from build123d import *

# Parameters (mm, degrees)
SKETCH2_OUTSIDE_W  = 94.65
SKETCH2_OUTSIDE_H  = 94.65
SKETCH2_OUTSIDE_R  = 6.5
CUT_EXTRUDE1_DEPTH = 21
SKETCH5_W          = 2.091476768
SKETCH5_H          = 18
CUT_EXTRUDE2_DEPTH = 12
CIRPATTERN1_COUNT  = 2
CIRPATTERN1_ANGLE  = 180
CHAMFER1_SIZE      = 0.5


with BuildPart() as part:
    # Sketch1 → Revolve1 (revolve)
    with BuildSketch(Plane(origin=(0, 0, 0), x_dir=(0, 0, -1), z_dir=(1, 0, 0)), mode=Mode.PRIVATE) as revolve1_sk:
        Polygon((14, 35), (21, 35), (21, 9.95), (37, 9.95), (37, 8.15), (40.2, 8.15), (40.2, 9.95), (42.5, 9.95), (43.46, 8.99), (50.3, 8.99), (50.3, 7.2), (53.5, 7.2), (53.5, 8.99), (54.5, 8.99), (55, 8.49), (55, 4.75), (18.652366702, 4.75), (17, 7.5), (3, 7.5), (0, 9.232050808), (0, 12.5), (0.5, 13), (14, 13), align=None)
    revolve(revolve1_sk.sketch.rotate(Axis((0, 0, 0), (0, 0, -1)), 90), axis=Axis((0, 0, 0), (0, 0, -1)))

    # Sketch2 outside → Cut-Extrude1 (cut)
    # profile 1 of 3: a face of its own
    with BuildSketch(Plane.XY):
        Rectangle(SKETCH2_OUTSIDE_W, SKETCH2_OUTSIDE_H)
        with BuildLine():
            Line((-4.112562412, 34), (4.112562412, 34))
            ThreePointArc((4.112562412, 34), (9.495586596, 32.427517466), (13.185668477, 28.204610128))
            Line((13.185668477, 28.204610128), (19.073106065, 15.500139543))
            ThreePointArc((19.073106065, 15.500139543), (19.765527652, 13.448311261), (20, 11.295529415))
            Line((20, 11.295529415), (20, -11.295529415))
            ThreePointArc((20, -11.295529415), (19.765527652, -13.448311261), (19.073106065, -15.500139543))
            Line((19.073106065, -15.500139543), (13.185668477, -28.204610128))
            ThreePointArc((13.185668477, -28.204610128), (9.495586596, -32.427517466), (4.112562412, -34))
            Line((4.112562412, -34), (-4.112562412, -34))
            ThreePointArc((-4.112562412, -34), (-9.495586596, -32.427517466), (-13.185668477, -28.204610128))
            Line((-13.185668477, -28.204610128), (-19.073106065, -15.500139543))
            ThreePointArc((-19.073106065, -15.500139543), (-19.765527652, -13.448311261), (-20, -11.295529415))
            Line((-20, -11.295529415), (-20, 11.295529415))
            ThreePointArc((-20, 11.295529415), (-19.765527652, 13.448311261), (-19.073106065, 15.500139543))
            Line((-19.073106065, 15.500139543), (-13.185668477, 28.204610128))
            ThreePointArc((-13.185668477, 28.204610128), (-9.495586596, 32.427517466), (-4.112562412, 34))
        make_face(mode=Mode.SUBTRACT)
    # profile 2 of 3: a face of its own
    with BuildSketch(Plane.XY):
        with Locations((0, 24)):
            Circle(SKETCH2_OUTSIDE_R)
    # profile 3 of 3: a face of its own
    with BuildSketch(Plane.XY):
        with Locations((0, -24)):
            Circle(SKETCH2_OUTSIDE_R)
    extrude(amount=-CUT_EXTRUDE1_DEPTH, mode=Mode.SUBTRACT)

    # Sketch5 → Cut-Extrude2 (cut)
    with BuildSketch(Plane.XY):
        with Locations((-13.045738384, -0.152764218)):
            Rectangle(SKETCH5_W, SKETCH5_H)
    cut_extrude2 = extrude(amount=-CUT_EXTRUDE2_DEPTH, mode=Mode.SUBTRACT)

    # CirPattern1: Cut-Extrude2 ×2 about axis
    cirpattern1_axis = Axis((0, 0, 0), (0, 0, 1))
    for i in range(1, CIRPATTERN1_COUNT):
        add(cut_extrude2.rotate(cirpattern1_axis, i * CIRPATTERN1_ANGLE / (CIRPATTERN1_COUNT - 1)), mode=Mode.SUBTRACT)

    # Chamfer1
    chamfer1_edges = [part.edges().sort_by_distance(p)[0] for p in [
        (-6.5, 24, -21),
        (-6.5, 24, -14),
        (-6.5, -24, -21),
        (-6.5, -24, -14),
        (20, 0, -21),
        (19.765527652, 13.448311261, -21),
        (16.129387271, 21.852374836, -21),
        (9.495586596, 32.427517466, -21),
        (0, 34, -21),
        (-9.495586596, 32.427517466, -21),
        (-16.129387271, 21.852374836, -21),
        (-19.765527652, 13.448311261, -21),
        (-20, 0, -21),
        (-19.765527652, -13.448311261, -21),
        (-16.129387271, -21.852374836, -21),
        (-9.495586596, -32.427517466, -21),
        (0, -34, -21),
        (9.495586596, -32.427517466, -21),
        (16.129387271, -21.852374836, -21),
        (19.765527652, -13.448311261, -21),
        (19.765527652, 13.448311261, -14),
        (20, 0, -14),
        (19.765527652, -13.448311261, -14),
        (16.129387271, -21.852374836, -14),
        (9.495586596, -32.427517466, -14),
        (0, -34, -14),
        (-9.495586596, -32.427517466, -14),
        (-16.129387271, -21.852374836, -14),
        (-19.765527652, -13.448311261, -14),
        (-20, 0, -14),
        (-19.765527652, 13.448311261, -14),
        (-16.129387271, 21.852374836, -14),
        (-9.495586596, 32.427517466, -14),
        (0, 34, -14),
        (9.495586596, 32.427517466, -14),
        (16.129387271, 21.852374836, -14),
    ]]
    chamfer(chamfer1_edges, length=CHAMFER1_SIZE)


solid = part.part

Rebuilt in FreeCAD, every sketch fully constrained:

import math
import FreeCAD as App
import Part
import Sketcher

V = App.Vector
Q = App.Units.Quantity


def edges_at(feature, points):
    """Names of the edges that pass closest to the given points."""
    edges = feature.Shape.Edges
    near = lambda p: min(range(len(edges)), key=lambda i: edges[i].distToShape(Part.Vertex(*p))[0])
    return sorted({f"Edge{near(p) + 1}" for p in points})


def add_polygon(sketch, points):
    """Adds a closed chain of lines whose ends are joined by coincident constraints."""
    first, n = sketch.GeometryCount, len(points)
    for a, b in zip(points, points[1:] + points[:1]):
        sketch.addGeometry(Part.LineSegment(App.Vector(*a, 0), App.Vector(*b, 0)), False)
    for i in range(n):
        sketch.addConstraint(Sketcher.Constraint("Coincident", first + i, 2, first + (i + 1) % n, 1))

doc = App.newDocument("Part")
body = doc.addObject("PartDesign::Body", "Body")

# Sketch on YZ plane
sketch1 = body.newObject("Sketcher::SketchObject", "Sketch")
sketch1.AttachmentSupport = (doc.getObject("YZ_Plane"), [""])
sketch1.MapMode = "FlatFace"
add_polygon(sketch1, [(35, -21), (35, -14), (13, -14), (13, -0.5), (12.5, 0), (9.232051, 0), (7.5, -3), (7.5, -17), (4.75, -18.652367), (4.75, -55), (8.49, -55), (8.99, -54.5), (8.99, -53.5), (7.2, -53.5), (7.2, -50.3), (8.99, -50.3), (8.99, -43.46), (9.95, -42.5), (9.95, -40.2), (8.15, -40.2), (8.15, -37), (9.95, -37), (9.95, -21)])  # lines 0-22
sketch1.addConstraint([
    Sketcher.Constraint("Vertical", 0),
    Sketcher.Constraint("Horizontal", 1),
    Sketcher.Constraint("Vertical", 2),
    Sketcher.Constraint("Horizontal", 4),
    Sketcher.Constraint("Vertical", 6),
    Sketcher.Constraint("Vertical", 8),
    Sketcher.Constraint("Horizontal", 9),
    Sketcher.Constraint("Vertical", 11),
    Sketcher.Constraint("Horizontal", 12),
    Sketcher.Constraint("Vertical", 13),
    Sketcher.Constraint("Horizontal", 14),
    Sketcher.Constraint("Vertical", 15),
    Sketcher.Constraint("Vertical", 17),
    Sketcher.Constraint("Horizontal", 18),
    Sketcher.Constraint("Vertical", 19),
    Sketcher.Constraint("Horizontal", 20),
    Sketcher.Constraint("Vertical", 21),
    Sketcher.Constraint("Horizontal", 22),
    Sketcher.Constraint("PointOnObject", 3, 2, -1),
    Sketcher.Constraint("Perpendicular", 3, 10),
    Sketcher.Constraint("Parallel", 10, 16),
    Sketcher.Constraint("Vertical", 11, 2, 14, 2),
    Sketcher.Constraint("Vertical", 17, 2, 20, 2),
    Sketcher.Constraint("Equal", 13, 19),
    Sketcher.Constraint("Equal", 3, 10),
    Sketcher.Constraint("DistanceX", 1, 2, 1, 1, Q("22 mm")),
    Sketcher.Constraint("DistanceY", 0, 1, 0, 2, Q("7 mm")),
    Sketcher.Constraint("DistanceY", 6, 2, 6, 1, Q("14 mm")),
    Sketcher.Constraint("DistanceY", 11, 1, 11, 2, Q("1 mm")),
    Sketcher.Constraint("DistanceY", 21, 1, 21, 2, Q("16 mm")),
    Sketcher.Constraint("Angle", 3, Q("135 deg")),
    Sketcher.Constraint("Angle", 5, Q("-120 deg")),
    Sketcher.Constraint("Angle", 7, Q("-149 deg")),
    Sketcher.Constraint("DistanceX", 18, 2, 18, 1, Q("1.8 mm")),
    Sketcher.Constraint("DistanceY", 2, 1, 2, 2, Q("13.5 mm")),
    Sketcher.Constraint("DistanceY", 13, 1, 13, 2, Q("3.2 mm")),
    Sketcher.Constraint("DistanceY", 17, 1, 17, 2, Q("2.3 mm")),
    Sketcher.Constraint("DistanceX", -1, 1, 0, 2, Q("35 mm")),
    Sketcher.Constraint("DistanceY", 0, 2, -1, 1, Q("14 mm")),
    Sketcher.Constraint("DistanceY", 5, 2, -1, 1, Q("3 mm")),
    Sketcher.Constraint("DistanceY", 8, 2, -1, 1, Q("55 mm")),
    Sketcher.Constraint("DistanceX", 5, 2, 3, 2, Q("5 mm")),
    Sketcher.Constraint("DistanceX", 9, 1, 9, 2, Q("3.74 mm")),
    Sketcher.Constraint("DistanceX", 12, 2, 12, 1, Q("1.79 mm")),
    Sketcher.Constraint("DistanceX", 22, 1, 22, 2, Q("25.05 mm")),
    Sketcher.Constraint("DistanceY", 15, 1, 15, 2, Q("6.84 mm")),
])
revolution = body.newObject("PartDesign::Revolution", "Revolution")
revolution.Profile = sketch1
revolution.ReferenceAxis = (sketch1, ["V_Axis"])
revolution.Angle = 360

# Sketch on XY plane
sketch2 = body.newObject("Sketcher::SketchObject", "Sketch001")
sketch2.AttachmentSupport = (doc.getObject("XY_Plane"), [""])
sketch2.MapMode = "FlatFace"
add_polygon(sketch2, [(-47.325, 47.325), (-47.325, -47.325), (47.325, -47.325), (47.325, 47.325)])  # lines 0-3
sketch2.addGeometry(Part.ArcOfCircle(Part.Circle(V(-4.112562, 24, 0), V(0, 0, 1), 10), math.radians(90), math.radians(155.136303)), False)  # 4
sketch2.addGeometry(Part.LineSegment(V(-4.112562, 34, 0), V(4.112562, 34, 0)), False)  # 5
sketch2.addGeometry(Part.ArcOfCircle(Part.Circle(V(4.112562, 24, 0), V(0, 0, 1), 10), math.radians(24.863697), math.radians(90)), False)  # 6
sketch2.addGeometry(Part.LineSegment(V(13.185668, 28.20461, 0), V(19.073106, 15.50014, 0)), False)  # 7
sketch2.addGeometry(Part.ArcOfCircle(Part.Circle(V(10, 11.295529, 0), V(0, 0, 1), 10), math.radians(0), math.radians(24.863697)), False)  # 8
sketch2.addGeometry(Part.LineSegment(V(20, 11.295529, 0), V(20, -11.295529, 0)), False)  # 9
sketch2.addGeometry(Part.ArcOfCircle(Part.Circle(V(10, -11.295529, 0), V(0, 0, 1), 10), math.radians(-24.863697), math.radians(0)), False)  # 10
sketch2.addGeometry(Part.LineSegment(V(19.073106, -15.50014, 0), V(13.185668, -28.20461, 0)), False)  # 11
sketch2.addGeometry(Part.ArcOfCircle(Part.Circle(V(4.112562, -24, 0), V(0, 0, 1), 10), math.radians(-90), math.radians(-24.863697)), False)  # 12
sketch2.addGeometry(Part.LineSegment(V(4.112562, -34, 0), V(-4.112562, -34, 0)), False)  # 13
sketch2.addGeometry(Part.ArcOfCircle(Part.Circle(V(-4.112562, -24, 0), V(0, 0, 1), 10), math.radians(-155.136303), math.radians(-90)), False)  # 14
sketch2.addGeometry(Part.LineSegment(V(-13.185668, -28.20461, 0), V(-19.073106, -15.50014, 0)), False)  # 15
sketch2.addGeometry(Part.ArcOfCircle(Part.Circle(V(-10, -11.295529, 0), V(0, 0, 1), 10), math.radians(180), math.radians(204.863697)), False)  # 16
sketch2.addGeometry(Part.LineSegment(V(-20, -11.295529, 0), V(-20, 11.295529, 0)), False)  # 17
sketch2.addGeometry(Part.ArcOfCircle(Part.Circle(V(-10, 11.295529, 0), V(0, 0, 1), 10), math.radians(155.136303), math.radians(180)), False)  # 18
sketch2.addGeometry(Part.LineSegment(V(-19.073106, 15.50014, 0), V(-13.185668, 28.20461, 0)), False)  # 19
sketch2.addGeometry(Part.Circle(V(0, 24, 0), V(0, 0, 1), 6.5), False)  # 20
sketch2.addGeometry(Part.Circle(V(0, -24, 0), V(0, 0, 1), 6.5), False)  # 21
sketch2.addConstraint([
    Sketcher.Constraint("Tangent", 4, 1, 5, 1),
    Sketcher.Constraint("Tangent", 5, 2, 6, 2),
    Sketcher.Constraint("Tangent", 6, 1, 7, 1),
    Sketcher.Constraint("Tangent", 7, 2, 8, 2),
    Sketcher.Constraint("Tangent", 8, 1, 9, 1),
    Sketcher.Constraint("Tangent", 9, 2, 10, 2),
    Sketcher.Constraint("Tangent", 10, 1, 11, 1),
    Sketcher.Constraint("Tangent", 11, 2, 12, 2),
    Sketcher.Constraint("Tangent", 12, 1, 13, 1),
    Sketcher.Constraint("Tangent", 13, 2, 14, 2),
    Sketcher.Constraint("Tangent", 14, 1, 15, 1),
    Sketcher.Constraint("Tangent", 15, 2, 16, 2),
    Sketcher.Constraint("Tangent", 16, 1, 17, 1),
    Sketcher.Constraint("Tangent", 17, 2, 18, 2),
    Sketcher.Constraint("Tangent", 18, 1, 19, 1),
    Sketcher.Constraint("Tangent", 19, 2, 4, 2),
    Sketcher.Constraint("Vertical", 0),
    Sketcher.Constraint("Horizontal", 1),
    Sketcher.Constraint("Vertical", 2),
    Sketcher.Constraint("Horizontal", 3),
    Sketcher.Constraint("Horizontal", 5),
    Sketcher.Constraint("Vertical", 9),
    Sketcher.Constraint("Horizontal", 13),
    Sketcher.Constraint("Vertical", 17),
    Sketcher.Constraint("Equal", 4, 6),
    Sketcher.Constraint("Equal", 6, 8),
    Sketcher.Constraint("Equal", 8, 10),
    Sketcher.Constraint("Equal", 10, 12),
    Sketcher.Constraint("Equal", 12, 14),
    Sketcher.Constraint("Equal", 14, 16),
    Sketcher.Constraint("Equal", 16, 18),
    Sketcher.Constraint("Equal", 20, 21),
    Sketcher.Constraint("Symmetric", 4, 3, 12, 3, -1, 1),
    Sketcher.Constraint("Symmetric", 8, 3, 16, 3, -1, 1),
    Sketcher.Constraint("Symmetric", 20, 3, 21, 3, -1, 1),
    Sketcher.Constraint("Symmetric", 0, 2, 2, 2, -1, 1),
    Sketcher.Constraint("Symmetric", 11, 2, 14, 1, -2),
    Sketcher.Constraint("Symmetric", 7, 2, 18, 1, -2),
    Sketcher.Constraint("PointOnObject", 20, 3, -2),
    Sketcher.Constraint("Horizontal", 6, 3, 20, 3),
    Sketcher.Constraint("Equal", 3, 0),
    Sketcher.Constraint("Diameter", 20, Q("13 mm")),
    Sketcher.Constraint("Radius", 4, Q("10 mm")),
    Sketcher.Constraint("DistanceY", -1, 1, 4, 3, Q("24 mm")),
    Sketcher.Constraint("DistanceX", -1, 1, 8, 3, Q("10 mm")),
    Sketcher.Constraint("DistanceX", 1, 1, 1, 2, Q("94.65 mm")),
    Sketcher.Constraint("DistanceY", 9, 2, 9, 1, Q("22.591059 mm")),
    Sketcher.Constraint("Distance", 7, Q("14.002339 mm")),
])
pocket1 = body.newObject("PartDesign::Pocket", "Pocket")
pocket1.Profile = sketch2
pocket1.Length = 21

# Sketch on XY plane
sketch3 = body.newObject("Sketcher::SketchObject", "Sketch002")
sketch3.AttachmentSupport = (doc.getObject("XY_Plane"), [""])
sketch3.MapMode = "FlatFace"
add_polygon(sketch3, [(-14.091477, 8.847236), (-14.091477, -9.152764), (-12, -9.152764), (-12, 8.847236)])  # lines 0-3
sketch3.addConstraint([
    Sketcher.Constraint("Vertical", 0),
    Sketcher.Constraint("Horizontal", 1),
    Sketcher.Constraint("Vertical", 2),
    Sketcher.Constraint("Horizontal", 3),
    Sketcher.Constraint("DistanceY", 0, 2, 0, 1, Q("18 mm")),
    Sketcher.Constraint("DistanceX", 1, 2, -1, 1, Q("12 mm")),
    Sketcher.Constraint("DistanceX", 1, 1, 1, 2, Q("2.091477 mm")),
    Sketcher.Constraint("DistanceY", 0, 2, -1, 1, Q("9.152764 mm")),
])
pocket2 = body.newObject("PartDesign::Pocket", "Pocket001")
pocket2.Profile = sketch3
pocket2.Length = 12
doc.recompute()

polarpattern = body.newObject("PartDesign::PolarPattern", "PolarPattern")
polarpattern.Originals = [pocket2]
polarpattern.Axis = (doc.getObject("Z_Axis"), [""])
polarpattern.Angle = 360
polarpattern.Occurrences = 2
body.Tip = polarpattern
doc.recompute()

chamfer = body.newObject("PartDesign::Chamfer", "Chamfer")
chamfer.Base = (polarpattern, edges_at(polarpattern, [
    (-6.5, 24, -21),
    (-6.5, 24, -14),
    (-6.5, -24, -21),
    (-6.5, -24, -14),
    (20, 0, -21),
    (19.766, 13.448, -21),
    (16.129, 21.852, -21),
    (9.496, 32.428, -21),
    (0, 34, -21),
    (-9.496, 32.428, -21),
    (-16.129, 21.852, -21),
    (-19.766, 13.448, -21),
    (-20, 0, -21),
    (-19.766, -13.448, -21),
    (-16.129, -21.852, -21),
    (-9.496, -32.428, -21),
    (0, -34, -21),
    (9.496, -32.428, -21),
    (16.129, -21.852, -21),
    (19.766, -13.448, -21),
    (19.766, 13.448, -14),
    (20, 0, -14),
    (19.766, -13.448, -14),
    (16.129, -21.852, -14),
    (9.496, -32.428, -14),
    (0, -34, -14),
    (-9.496, -32.428, -14),
    (-16.129, -21.852, -14),
    (-19.766, -13.448, -14),
    (-20, 0, -14),
    (-19.766, 13.448, -14),
    (-16.129, 21.852, -14),
    (-9.496, 32.428, -14),
    (0, 34, -14),
    (9.496, 32.428, -14),
    (16.129, 21.852, -14),
]))
chamfer.Size = 0.5

doc.recompute()
